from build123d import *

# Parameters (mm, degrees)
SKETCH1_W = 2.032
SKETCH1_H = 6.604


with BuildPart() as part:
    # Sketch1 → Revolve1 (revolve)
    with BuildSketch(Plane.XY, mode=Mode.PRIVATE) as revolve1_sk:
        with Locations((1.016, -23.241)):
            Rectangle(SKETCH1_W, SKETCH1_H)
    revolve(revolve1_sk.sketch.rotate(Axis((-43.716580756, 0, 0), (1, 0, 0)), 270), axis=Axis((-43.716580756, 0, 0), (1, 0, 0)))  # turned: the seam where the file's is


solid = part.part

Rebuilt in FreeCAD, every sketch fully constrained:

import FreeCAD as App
import Part
import Sketcher
from FreeCAD import Vector
Q = App.Units.Quantity

doc = App.newDocument("Part")
body = doc.addObject("PartDesign::Body", "Body")

# Sketch on XY plane
sketch1 = body.newObject("Sketcher::SketchObject", "Sketch")
sketch1.AttachmentSupport = (doc.getObject("XY_Plane"), [""])
sketch1.MapMode = "FlatFace"
sketch1.addGeometry(Part.LineSegment(Vector(0, -19.9, 0), Vector(0, -26.5, 0)), False)
sketch1.addGeometry(Part.LineSegment(Vector(0, -26.5, 0), Vector(2, -26.5, 0)), False)
sketch1.addGeometry(Part.LineSegment(Vector(2, -26.5, 0), Vector(2, -19.9, 0)), False)
sketch1.addGeometry(Part.LineSegment(Vector(2, -19.9, 0), Vector(0, -19.9, 0)), False)
sketch1.addConstraint(Sketcher.Constraint("Coincident", 0, 2, 1, 1))
sketch1.addConstraint(Sketcher.Constraint("Coincident", 1, 2, 2, 1))
sketch1.addConstraint(Sketcher.Constraint("Coincident", 2, 2, 3, 1))
sketch1.addConstraint(Sketcher.Constraint("Coincident", 3, 2, 0, 1))
sketch1.addConstraint(Sketcher.Constraint("Vertical", 0))
sketch1.addConstraint(Sketcher.Constraint("Horizontal", 1))
sketch1.addConstraint(Sketcher.Constraint("Vertical", 2))
sketch1.addConstraint(Sketcher.Constraint("Horizontal", 3))
sketch1.addConstraint(Sketcher.Constraint("PointOnObject", 0, 2, -2))
sketch1.addConstraint(Sketcher.Constraint("DistanceX", 1, 1, 1, 2, Q("0.08 in")))
sketch1.addConstraint(Sketcher.Constraint("DistanceY", 0, 2, 0, 1, Q("0.26 in")))
sketch1.addConstraint(Sketcher.Constraint("DistanceY", 0, 2, -1, 1, Q("1.045 in")))
revolution = body.newObject("PartDesign::Revolution", "Revolution")
revolution.Profile = sketch1
revolution.ReferenceAxis = (sketch1, ["H_Axis"])
revolution.Angle = 360

doc.recompute()
